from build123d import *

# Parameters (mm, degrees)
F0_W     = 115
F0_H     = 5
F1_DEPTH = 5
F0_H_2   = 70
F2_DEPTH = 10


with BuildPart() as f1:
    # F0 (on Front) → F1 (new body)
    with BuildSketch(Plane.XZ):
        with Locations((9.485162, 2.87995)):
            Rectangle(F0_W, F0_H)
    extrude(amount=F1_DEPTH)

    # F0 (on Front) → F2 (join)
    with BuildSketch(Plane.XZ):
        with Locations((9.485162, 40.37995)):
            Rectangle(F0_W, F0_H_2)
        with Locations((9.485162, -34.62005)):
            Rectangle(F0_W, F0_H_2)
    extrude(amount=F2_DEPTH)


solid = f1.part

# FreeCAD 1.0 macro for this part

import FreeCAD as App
import Part
import Sketcher

V = App.Vector
Q = App.Units.Quantity


def add_polygon(sketch, points):
    """Adds a closed chain of lines whose ends are joined by coincident constraints."""
    first, n = sketch.GeometryCount, len(points)
    for a, b in zip(points, points[1:] + points[:1]):
        sketch.addGeometry(Part.LineSegment(App.Vector(*a, 0), App.Vector(*b, 0)), False)
    for i in range(n):
        sketch.addConstraint(Sketcher.Constraint("Coincident", first + i, 2, first + (i + 1) % n, 1))

doc = App.newDocument("Part")
body = doc.addObject("PartDesign::Body", "Body")

sketch1 = body.newObject("Sketcher::SketchObject", "Sketch")
sketch1.AttachmentSupport = (doc.getObject("XZ_Plane"), [""])
sketch1.MapMode = "FlatFace"
add_polygon(sketch1, [(-48, 5), (-48, 0), (67, 0), (67, 5)])
sketch1.addConstraint([
    Sketcher.Constraint("Vertical", 0),
    Sketcher.Constraint("Horizontal", 1),
    Sketcher.Constraint("Vertical", 2),
    Sketcher.Constraint("Horizontal", 3),
    Sketcher.Constraint("DistanceX", 1, 1, 1, 2, Q("115 mm")),
    Sketcher.Constraint("DistanceY", 0, 2, 0, 1, Q("5 mm")),
    Sketcher.Constraint("DistanceY", -1, 1, 0, 2, Q("0.37995 mm")),
    Sketcher.Constraint("DistanceX", 0, 2, -1, 1, Q("48.014838 mm")),
])
pad1 = body.newObject("PartDesign::Pad", "Pad")
pad1.Profile = sketch1
pad1.Length = 5

sketch2 = body.newObject("Sketcher::SketchObject", "Sketch001")
sketch2.AttachmentSupport = (doc.getObject("XZ_Plane"), [""])
sketch2.MapMode = "FlatFace"
add_polygon(sketch2, [(-48, 75), (-48, 5), (67, 5), (67, 75)])
add_polygon(sketch2, [(-48, 0), (-48, -70), (67, -70), (67, 0)])
sketch2.addConstraint([
    Sketcher.Constraint("Vertical", 0),
    Sketcher.Constraint("Horizontal", 1),
    Sketcher.Constraint("Vertical", 2),
    Sketcher.Constraint("Horizontal", 3),
    Sketcher.Constraint("Vertical", 4),
    Sketcher.Constraint("Horizontal", 5),
    Sketcher.Constraint("Vertical", 6),
    Sketcher.Constraint("Horizontal", 7),
    Sketcher.Constraint("Vertical", 3, 2, 4, 2),
    Sketcher.Constraint("Vertical", 2, 2, 5, 2),
    Sketcher.Constraint("Equal", 2, 4),
    Sketcher.Constraint("DistanceX", 1, 1, 1, 2, Q("115 mm")),
    Sketcher.Constraint("DistanceY", 0, 2, 0, 1, Q("70 mm")),
    Sketcher.Constraint("DistanceY", 4, 2, 0, 2, Q("75 mm")),
    Sketcher.Constraint("DistanceY", -1, 1, 0, 2, Q("5.37995 mm")),
    Sketcher.Constraint("DistanceX", 0, 2, -1, 1, Q("48.014838 mm")),
])
pad2 = body.newObject("PartDesign::Pad", "Pad001")
pad2.Profile = sketch2
pad2.Length = 10

doc.recompute()
